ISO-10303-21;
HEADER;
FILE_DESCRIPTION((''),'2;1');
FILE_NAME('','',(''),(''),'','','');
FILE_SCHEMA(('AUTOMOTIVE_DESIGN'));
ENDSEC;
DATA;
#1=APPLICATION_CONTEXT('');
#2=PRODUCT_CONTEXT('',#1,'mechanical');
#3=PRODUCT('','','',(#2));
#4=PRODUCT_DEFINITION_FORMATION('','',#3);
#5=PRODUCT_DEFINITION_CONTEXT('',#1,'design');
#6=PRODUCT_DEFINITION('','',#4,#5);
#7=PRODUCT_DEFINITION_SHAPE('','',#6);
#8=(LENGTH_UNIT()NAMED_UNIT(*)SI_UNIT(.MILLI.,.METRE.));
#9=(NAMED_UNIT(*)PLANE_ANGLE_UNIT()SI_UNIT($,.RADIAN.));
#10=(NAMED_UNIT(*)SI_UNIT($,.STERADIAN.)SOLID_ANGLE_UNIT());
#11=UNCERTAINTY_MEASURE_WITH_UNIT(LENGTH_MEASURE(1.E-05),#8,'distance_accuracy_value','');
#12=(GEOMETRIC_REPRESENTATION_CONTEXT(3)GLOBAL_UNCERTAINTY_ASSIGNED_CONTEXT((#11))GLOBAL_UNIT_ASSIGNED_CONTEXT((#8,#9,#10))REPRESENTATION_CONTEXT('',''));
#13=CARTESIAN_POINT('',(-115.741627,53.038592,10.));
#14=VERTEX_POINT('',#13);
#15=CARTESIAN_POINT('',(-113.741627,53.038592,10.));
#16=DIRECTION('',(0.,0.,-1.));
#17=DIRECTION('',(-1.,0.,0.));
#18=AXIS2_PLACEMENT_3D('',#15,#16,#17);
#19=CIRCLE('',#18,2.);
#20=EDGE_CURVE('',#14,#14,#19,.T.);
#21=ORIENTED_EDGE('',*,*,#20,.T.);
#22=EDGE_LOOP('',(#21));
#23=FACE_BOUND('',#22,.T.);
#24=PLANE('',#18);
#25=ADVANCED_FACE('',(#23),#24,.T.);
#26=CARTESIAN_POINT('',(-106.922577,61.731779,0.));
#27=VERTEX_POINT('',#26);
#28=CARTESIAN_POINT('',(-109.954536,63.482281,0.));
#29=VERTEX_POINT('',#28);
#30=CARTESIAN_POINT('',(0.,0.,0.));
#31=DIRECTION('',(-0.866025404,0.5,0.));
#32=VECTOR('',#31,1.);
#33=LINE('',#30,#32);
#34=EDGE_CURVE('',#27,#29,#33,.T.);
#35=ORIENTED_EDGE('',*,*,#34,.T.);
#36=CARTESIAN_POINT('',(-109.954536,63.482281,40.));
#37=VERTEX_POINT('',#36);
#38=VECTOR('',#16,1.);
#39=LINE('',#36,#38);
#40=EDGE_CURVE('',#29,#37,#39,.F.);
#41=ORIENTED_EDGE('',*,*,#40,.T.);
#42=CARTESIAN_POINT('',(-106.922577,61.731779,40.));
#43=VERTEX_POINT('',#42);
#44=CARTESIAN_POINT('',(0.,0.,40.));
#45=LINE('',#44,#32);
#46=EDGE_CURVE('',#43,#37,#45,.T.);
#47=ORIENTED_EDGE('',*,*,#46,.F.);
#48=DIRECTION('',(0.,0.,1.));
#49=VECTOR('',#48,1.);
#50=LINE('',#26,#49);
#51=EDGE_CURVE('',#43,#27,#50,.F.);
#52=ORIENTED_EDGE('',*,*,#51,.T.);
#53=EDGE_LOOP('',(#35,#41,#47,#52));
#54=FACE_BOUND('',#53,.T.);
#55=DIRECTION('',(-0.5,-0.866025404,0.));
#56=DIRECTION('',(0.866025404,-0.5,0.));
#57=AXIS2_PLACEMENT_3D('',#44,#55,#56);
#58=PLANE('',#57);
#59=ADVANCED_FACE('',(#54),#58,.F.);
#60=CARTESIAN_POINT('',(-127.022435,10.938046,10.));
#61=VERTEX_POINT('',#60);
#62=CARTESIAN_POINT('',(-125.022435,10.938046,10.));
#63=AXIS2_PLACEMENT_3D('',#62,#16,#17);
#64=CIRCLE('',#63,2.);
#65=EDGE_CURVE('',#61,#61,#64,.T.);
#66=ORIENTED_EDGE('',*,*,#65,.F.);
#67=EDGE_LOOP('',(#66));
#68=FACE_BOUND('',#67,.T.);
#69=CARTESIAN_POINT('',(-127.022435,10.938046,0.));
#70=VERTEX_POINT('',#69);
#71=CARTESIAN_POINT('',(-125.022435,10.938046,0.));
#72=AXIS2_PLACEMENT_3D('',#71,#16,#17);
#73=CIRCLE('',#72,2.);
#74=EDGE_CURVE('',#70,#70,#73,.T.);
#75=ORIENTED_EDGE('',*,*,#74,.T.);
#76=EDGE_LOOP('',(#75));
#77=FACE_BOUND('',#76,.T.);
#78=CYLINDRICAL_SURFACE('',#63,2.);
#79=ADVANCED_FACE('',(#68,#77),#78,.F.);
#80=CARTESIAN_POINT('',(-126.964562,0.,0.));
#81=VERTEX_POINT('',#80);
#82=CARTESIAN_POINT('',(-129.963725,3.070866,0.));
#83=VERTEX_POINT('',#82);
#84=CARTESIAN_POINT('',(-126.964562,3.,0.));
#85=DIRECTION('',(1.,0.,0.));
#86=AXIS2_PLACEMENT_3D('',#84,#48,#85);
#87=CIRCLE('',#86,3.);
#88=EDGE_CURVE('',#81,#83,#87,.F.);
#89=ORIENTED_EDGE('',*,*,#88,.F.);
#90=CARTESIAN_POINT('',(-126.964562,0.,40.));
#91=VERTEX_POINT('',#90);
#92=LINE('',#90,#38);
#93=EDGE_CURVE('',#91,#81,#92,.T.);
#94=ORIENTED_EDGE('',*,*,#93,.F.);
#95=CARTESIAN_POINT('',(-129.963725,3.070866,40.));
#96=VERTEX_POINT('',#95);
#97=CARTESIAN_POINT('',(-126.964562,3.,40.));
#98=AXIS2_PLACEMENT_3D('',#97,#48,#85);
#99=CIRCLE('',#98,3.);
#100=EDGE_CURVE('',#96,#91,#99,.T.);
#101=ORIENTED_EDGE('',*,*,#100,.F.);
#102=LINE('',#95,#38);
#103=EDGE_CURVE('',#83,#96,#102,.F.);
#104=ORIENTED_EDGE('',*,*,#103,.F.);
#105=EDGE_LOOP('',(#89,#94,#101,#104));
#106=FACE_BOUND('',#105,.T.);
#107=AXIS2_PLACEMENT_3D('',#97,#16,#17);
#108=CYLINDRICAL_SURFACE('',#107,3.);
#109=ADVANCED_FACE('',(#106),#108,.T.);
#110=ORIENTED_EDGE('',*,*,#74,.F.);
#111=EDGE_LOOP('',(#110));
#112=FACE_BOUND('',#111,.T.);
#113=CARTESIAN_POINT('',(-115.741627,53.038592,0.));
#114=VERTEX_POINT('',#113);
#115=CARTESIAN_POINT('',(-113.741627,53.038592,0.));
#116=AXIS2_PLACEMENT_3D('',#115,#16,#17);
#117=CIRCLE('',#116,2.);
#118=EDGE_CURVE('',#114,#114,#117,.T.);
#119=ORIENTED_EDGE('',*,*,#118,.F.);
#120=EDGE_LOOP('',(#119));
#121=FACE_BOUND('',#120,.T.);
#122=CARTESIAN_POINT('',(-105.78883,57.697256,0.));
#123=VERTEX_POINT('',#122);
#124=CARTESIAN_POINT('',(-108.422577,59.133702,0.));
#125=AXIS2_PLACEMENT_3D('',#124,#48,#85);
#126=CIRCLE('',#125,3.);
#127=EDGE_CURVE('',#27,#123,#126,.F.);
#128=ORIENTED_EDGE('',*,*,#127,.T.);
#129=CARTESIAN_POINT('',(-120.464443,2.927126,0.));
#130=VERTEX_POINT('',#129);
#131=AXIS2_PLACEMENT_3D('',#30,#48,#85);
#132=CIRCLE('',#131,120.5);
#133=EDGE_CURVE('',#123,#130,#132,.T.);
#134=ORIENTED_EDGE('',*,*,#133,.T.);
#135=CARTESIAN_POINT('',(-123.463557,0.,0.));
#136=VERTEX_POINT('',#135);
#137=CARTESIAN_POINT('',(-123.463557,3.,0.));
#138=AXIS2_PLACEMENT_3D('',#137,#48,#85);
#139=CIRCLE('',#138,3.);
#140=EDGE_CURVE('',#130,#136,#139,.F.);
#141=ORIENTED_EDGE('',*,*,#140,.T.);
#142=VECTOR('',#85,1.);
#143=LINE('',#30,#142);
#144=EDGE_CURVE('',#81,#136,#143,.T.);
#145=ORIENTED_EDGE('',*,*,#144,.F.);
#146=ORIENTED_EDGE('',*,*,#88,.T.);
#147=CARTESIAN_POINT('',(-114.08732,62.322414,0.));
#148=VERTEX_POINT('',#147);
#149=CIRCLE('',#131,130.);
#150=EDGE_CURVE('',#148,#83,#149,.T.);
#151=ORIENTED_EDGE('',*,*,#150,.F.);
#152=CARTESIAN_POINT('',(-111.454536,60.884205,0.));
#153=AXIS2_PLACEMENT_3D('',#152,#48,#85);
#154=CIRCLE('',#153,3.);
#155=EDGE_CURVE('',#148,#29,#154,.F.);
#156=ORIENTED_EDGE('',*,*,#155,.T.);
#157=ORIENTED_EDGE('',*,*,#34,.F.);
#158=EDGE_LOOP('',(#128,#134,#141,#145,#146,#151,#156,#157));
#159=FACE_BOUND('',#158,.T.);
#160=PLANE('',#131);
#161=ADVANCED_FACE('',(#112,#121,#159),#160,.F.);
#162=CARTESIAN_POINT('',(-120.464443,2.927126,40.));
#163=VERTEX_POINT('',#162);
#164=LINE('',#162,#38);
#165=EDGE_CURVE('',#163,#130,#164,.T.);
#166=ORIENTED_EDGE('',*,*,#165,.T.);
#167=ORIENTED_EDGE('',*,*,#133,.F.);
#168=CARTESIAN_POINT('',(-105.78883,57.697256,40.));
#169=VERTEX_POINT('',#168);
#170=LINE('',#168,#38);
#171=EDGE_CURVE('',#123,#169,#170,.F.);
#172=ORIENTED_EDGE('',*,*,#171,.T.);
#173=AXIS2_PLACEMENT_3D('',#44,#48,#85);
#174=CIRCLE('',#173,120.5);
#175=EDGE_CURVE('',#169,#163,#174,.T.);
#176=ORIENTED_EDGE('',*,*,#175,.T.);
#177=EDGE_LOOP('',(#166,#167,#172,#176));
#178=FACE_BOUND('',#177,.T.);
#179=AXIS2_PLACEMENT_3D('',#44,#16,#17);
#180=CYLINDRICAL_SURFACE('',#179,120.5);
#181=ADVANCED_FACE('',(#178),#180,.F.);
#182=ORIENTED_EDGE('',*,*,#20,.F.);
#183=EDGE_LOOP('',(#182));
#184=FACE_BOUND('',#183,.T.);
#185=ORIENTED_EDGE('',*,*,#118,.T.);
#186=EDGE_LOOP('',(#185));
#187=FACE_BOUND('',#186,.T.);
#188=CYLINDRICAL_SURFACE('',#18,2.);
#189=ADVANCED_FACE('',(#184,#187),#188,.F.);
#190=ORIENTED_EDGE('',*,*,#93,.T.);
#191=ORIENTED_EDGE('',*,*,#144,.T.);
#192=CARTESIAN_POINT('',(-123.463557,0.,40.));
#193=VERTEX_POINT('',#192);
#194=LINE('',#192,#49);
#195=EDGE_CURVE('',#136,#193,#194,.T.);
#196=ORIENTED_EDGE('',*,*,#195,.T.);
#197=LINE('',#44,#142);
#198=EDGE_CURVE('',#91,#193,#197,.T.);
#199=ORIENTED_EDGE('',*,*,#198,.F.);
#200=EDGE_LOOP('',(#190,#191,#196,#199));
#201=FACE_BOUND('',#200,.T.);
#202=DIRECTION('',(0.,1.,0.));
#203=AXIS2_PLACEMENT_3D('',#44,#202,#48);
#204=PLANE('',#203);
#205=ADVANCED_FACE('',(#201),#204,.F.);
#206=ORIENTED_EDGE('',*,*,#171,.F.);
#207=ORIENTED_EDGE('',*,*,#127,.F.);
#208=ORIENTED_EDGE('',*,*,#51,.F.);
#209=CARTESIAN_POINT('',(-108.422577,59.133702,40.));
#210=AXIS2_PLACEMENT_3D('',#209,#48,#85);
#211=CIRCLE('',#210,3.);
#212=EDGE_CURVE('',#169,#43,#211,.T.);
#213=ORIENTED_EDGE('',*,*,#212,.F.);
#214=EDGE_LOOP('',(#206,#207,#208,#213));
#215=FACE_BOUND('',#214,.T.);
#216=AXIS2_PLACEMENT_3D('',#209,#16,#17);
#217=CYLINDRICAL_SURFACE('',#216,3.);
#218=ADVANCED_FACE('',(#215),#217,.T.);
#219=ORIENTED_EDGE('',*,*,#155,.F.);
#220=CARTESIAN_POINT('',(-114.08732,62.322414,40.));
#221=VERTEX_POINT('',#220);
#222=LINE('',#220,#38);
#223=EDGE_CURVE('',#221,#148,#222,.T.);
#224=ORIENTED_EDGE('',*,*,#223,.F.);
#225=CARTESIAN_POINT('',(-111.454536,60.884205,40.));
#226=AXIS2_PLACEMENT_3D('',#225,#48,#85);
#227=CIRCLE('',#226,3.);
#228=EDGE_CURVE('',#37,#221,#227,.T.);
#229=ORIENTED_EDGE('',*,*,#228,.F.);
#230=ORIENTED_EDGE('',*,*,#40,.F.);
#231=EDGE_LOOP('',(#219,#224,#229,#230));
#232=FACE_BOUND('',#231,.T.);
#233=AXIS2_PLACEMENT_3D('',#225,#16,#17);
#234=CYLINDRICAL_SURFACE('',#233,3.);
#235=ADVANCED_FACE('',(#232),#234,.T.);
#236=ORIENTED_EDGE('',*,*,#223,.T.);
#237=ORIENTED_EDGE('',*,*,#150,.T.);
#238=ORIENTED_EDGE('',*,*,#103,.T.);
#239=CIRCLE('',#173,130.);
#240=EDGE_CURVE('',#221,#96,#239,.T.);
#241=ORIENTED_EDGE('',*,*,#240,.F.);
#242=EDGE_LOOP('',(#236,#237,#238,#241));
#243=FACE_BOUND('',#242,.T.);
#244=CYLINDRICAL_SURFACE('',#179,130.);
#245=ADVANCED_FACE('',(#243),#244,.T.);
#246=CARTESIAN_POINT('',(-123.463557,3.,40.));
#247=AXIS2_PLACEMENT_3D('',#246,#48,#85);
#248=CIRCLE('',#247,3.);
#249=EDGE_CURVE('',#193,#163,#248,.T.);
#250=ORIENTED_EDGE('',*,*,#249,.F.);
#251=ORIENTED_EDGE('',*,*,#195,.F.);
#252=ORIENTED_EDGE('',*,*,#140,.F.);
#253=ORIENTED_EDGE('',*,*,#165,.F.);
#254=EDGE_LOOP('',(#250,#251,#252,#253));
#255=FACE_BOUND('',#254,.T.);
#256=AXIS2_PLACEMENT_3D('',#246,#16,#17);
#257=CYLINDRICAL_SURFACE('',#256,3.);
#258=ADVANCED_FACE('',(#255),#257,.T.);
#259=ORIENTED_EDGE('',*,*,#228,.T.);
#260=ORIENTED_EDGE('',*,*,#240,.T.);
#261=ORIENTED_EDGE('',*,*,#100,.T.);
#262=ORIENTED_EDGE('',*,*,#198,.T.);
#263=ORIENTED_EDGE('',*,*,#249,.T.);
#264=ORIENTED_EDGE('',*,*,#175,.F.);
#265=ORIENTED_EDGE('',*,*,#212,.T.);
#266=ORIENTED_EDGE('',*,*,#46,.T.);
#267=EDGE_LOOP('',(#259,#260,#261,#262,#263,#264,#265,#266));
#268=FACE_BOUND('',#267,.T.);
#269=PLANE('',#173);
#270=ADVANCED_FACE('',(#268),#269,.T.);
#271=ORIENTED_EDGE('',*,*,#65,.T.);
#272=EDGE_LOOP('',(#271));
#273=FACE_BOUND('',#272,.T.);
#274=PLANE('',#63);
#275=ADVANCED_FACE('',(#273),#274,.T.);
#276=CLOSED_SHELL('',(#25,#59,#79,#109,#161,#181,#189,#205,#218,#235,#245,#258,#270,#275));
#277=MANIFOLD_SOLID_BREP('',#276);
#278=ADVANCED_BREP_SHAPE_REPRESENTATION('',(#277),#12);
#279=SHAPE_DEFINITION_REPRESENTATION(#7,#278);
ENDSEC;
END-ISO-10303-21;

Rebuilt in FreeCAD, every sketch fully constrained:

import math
import FreeCAD as App
import Part
import Sketcher

V = App.Vector
Q = App.Units.Quantity


def edges_at(feature, points):
    """Names of the edges that pass closest to the given points."""
    edges = feature.Shape.Edges
    near = lambda p: min(range(len(edges)), key=lambda i: edges[i].distToShape(Part.Vertex(*p))[0])
    return sorted({f"Edge{near(p) + 1}" for p in points})

doc = App.newDocument("Part")
body = doc.addObject("PartDesign::Body", "Body")

# Sketch on XY plane
sketch1 = doc.addObject("Sketcher::SketchObject", "Sketch")
body.addObject(sketch1)
sketch1.AttachmentSupport = (doc.XY_Plane, [""])
sketch1.MapMode = "FlatFace"
sketch1.addGeometry([
    Part.LineSegment(V(-130, 0, 0), V(-120.5, 0, 0)),
    Part.ArcOfCircle(Part.Circle(V(0, 0, 0), V(0, 0, 1), 120.5), math.radians(150), math.radians(180)),
    Part.LineSegment(V(-104.356061, 60.25, 0), V(-112.583302, 65, 0)),
    Part.ArcOfCircle(Part.Circle(V(0, 0, 0), V(0, 0, 1), 130), math.radians(150), math.radians(180)),
], False)
sketch1.addConstraint([
    Sketcher.Constraint("Coincident", 0, 2, 1, 2),
    Sketcher.Constraint("Coincident", 1, 1, 2, 1),
    Sketcher.Constraint("Coincident", 2, 2, 3, 1),
    Sketcher.Constraint("Coincident", 3, 2, 0, 1),
    Sketcher.Constraint("Horizontal", 0),
    Sketcher.Constraint("Coincident", 1, 3, -1, 1),
    Sketcher.Constraint("Coincident", 3, 3, -1, 1),
    Sketcher.Constraint("PointOnObject", 0, 2, -1),
    Sketcher.Constraint("Radius", 3, 130.0),
    Sketcher.Constraint("Radius", 1, 120.5),
    Sketcher.Constraint("Angle", 2, Q("150 deg")),
    Sketcher.Constraint("DistanceY", -1, 1, 2, 2, 65.0),
])
pad1 = doc.addObject("PartDesign::Pad", "Pad")
body.addObject(pad1)
pad1.Profile = sketch1
pad1.Length = 40
doc.recompute()

fillet = doc.addObject("PartDesign::Fillet", "Fillet")
body.addObject(fillet)
fillet.Base = (pad1, edges_at(pad1, [
    (-104.356, 60.25, 20),
    (-120.5, 0, 20),
    (-130, 0, 20),
    (-112.583, 65, 20),
]))
fillet.Radius = 3

# Sketch on XY plane
sketch2 = doc.addObject("Sketcher::SketchObject", "Sketch001")
body.addObject(sketch2)
sketch2.AttachmentSupport = (doc.XY_Plane, [""])
sketch2.MapMode = "FlatFace"
sketch2.addGeometry([
    Part.Circle(V(-125.022435, 10.938046, 0), V(0, 0, 1), 2),
    Part.Circle(V(-113.741627, 53.038592, 0), V(0, 0, 1), 2),
], False)
sketch2.addConstraint([
    Sketcher.Constraint("Equal", 0, 1),
    Sketcher.Constraint("Diameter", 0, 4.0),
    Sketcher.Constraint("DistanceY", -1, 1, 1, 3, 53.038592),
    Sketcher.Constraint("DistanceX", 0, 3, -1, 1, 125.022435),
    Sketcher.Constraint("DistanceY", -1, 1, 0, 3, 10.938046),
    Sketcher.Constraint("DistanceX", 1, 3, -1, 1, 113.741627),
])
pocket1 = doc.addObject("PartDesign::Pocket", "Pocket")
body.addObject(pocket1)
pocket1.Profile = sketch2
pocket1.Length = 10
pocket1.Reversed = True

doc.recompute()
